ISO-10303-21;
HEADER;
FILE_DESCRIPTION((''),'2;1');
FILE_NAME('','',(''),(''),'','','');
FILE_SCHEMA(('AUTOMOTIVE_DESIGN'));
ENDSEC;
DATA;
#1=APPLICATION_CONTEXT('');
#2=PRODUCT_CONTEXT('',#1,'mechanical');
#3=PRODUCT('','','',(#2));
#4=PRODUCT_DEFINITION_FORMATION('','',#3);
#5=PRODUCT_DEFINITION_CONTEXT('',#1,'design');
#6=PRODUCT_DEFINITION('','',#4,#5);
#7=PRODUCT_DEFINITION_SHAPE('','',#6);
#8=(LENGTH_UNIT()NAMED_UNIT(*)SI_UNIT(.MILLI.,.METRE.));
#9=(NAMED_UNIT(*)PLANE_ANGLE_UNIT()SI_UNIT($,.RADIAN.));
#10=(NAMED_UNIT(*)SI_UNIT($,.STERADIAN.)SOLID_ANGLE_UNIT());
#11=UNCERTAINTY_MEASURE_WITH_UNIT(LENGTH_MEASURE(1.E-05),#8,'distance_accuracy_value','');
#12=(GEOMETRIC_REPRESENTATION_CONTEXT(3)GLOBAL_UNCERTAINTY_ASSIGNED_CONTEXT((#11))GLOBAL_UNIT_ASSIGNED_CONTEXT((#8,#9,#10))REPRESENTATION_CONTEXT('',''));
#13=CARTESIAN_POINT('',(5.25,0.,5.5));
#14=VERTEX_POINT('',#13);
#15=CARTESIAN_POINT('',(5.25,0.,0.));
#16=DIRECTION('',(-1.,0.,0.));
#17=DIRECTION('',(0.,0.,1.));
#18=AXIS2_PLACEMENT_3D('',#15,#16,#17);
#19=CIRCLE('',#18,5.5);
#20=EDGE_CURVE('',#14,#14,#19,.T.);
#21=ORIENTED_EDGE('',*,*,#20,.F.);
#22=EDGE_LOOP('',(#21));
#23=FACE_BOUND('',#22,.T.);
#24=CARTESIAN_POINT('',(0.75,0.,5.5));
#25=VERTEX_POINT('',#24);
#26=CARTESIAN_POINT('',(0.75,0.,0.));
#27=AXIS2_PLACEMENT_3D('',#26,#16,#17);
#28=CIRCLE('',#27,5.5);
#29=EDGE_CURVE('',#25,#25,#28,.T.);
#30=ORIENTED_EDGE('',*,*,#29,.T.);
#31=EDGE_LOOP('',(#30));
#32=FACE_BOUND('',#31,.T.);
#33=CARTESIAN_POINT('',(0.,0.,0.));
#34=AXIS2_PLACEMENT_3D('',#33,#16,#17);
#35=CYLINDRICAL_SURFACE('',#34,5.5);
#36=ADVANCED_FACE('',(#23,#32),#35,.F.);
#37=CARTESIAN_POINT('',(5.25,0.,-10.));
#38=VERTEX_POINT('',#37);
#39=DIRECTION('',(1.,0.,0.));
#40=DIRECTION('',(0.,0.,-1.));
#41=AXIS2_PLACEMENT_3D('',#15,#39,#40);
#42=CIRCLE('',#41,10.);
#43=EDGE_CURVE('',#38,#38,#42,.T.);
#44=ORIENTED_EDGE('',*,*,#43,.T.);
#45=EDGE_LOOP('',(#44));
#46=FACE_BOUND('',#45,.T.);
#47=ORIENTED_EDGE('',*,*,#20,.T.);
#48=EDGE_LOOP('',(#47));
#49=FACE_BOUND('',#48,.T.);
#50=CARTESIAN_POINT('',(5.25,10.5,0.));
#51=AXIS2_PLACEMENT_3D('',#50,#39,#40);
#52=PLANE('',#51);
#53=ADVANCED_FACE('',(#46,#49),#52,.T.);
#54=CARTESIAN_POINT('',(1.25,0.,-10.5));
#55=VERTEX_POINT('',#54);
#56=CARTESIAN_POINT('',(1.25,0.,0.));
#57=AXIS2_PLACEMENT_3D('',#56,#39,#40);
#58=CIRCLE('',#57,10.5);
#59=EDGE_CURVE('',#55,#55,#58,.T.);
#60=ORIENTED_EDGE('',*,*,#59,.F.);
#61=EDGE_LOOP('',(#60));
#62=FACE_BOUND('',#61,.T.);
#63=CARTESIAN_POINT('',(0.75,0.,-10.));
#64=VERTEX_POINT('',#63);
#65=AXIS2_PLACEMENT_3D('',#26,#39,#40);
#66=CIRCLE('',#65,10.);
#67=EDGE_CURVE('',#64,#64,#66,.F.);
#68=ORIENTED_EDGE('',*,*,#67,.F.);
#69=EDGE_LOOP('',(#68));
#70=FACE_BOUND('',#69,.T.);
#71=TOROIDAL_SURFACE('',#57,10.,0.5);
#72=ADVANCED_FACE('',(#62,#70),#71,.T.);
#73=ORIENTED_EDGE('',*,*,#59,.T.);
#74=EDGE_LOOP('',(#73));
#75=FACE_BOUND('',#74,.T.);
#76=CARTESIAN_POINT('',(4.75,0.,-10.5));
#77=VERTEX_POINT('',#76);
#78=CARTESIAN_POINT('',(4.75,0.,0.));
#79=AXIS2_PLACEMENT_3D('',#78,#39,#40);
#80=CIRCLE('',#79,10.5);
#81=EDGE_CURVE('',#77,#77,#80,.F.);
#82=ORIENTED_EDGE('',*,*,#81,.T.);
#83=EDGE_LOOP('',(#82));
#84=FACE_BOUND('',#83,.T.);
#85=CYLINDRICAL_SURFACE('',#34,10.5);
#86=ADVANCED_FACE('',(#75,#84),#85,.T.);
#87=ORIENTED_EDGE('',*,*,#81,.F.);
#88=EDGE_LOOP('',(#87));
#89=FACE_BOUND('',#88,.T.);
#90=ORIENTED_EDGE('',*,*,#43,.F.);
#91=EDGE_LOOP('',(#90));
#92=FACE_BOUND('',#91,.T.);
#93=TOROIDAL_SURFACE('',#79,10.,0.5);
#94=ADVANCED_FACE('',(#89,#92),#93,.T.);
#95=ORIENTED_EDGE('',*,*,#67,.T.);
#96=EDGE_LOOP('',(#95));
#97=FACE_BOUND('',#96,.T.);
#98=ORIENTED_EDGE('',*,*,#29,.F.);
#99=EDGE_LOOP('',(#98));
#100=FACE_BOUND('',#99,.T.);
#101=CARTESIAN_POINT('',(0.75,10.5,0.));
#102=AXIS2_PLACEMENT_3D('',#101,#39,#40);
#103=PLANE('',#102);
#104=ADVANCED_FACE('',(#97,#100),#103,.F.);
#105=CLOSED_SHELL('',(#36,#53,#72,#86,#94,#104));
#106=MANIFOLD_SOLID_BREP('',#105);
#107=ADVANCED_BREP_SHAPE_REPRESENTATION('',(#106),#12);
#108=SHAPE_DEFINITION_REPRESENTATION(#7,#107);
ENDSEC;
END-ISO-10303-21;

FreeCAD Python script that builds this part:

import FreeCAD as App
import Part
import Sketcher

V = App.Vector
Q = App.Units.Quantity


def edges_at(feature, points):
    """Names of the edges that pass closest to the given points."""
    edges = feature.Shape.Edges
    near = lambda p: min(range(len(edges)), key=lambda i: edges[i].distToShape(Part.Vertex(*p))[0])
    return sorted({f"Edge{near(p) + 1}" for p in points})

doc = App.newDocument("Part")
body = doc.addObject("PartDesign::Body", "Body")

# Sketch on XY plane
sketch1 = doc.addObject("Sketcher::SketchObject", "Sketch")
body.addObject(sketch1)
sketch1.AttachmentSupport = (doc.XY_Plane, [""])
sketch1.MapMode = "FlatFace"
sketch1.addGeometry(Part.LineSegment(V(0.8, 10.5, 0), V(0.8, 5.5, 0)), False)
sketch1.addGeometry(Part.LineSegment(V(0.8, 5.5, 0), V(5.2, 5.5, 0)), False)
sketch1.addGeometry(Part.LineSegment(V(5.2, 5.5, 0), V(5.2, 10.5, 0)), False)
sketch1.addGeometry(Part.LineSegment(V(5.2, 10.5, 0), V(0.8, 10.5, 0)), False)
sketch1.addConstraint(Sketcher.Constraint("Coincident", 0, 2, 1, 1))
sketch1.addConstraint(Sketcher.Constraint("Coincident", 1, 2, 2, 1))
sketch1.addConstraint(Sketcher.Constraint("Coincident", 2, 2, 3, 1))
sketch1.addConstraint(Sketcher.Constraint("Coincident", 3, 2, 0, 1))
sketch1.addConstraint(Sketcher.Constraint("Vertical", 0))
sketch1.addConstraint(Sketcher.Constraint("Horizontal", 1))
sketch1.addConstraint(Sketcher.Constraint("Vertical", 2))
sketch1.addConstraint(Sketcher.Constraint("Horizontal", 3))
sketch1.addConstraint(Sketcher.Constraint("DistanceY", 0, 2, 0, 1, Q("5 mm")))
sketch1.addConstraint(Sketcher.Constraint("DistanceX", 1, 1, 1, 2, Q("4.5 mm")))
sketch1.addConstraint(Sketcher.Constraint("DistanceY", -1, 1, 0, 2, Q("5.5 mm")))
sketch1.addConstraint(Sketcher.Constraint("DistanceX", -1, 1, 0, 2, Q("0.75 mm")))
revolution = doc.addObject("PartDesign::Revolution", "Revolution")
body.addObject(revolution)
revolution.Profile = sketch1
revolution.ReferenceAxis = (sketch1, ["H_Axis"])
revolution.Angle = 360
doc.recompute()

fillet = doc.addObject("PartDesign::Fillet", "Fillet")
body.addObject(fillet)
fillet.Base = (revolution, edges_at(revolution, [(5.25, -10.5, 0), (0.75, -10.5, 0)]))
fillet.Radius = 0.5

doc.recompute()
